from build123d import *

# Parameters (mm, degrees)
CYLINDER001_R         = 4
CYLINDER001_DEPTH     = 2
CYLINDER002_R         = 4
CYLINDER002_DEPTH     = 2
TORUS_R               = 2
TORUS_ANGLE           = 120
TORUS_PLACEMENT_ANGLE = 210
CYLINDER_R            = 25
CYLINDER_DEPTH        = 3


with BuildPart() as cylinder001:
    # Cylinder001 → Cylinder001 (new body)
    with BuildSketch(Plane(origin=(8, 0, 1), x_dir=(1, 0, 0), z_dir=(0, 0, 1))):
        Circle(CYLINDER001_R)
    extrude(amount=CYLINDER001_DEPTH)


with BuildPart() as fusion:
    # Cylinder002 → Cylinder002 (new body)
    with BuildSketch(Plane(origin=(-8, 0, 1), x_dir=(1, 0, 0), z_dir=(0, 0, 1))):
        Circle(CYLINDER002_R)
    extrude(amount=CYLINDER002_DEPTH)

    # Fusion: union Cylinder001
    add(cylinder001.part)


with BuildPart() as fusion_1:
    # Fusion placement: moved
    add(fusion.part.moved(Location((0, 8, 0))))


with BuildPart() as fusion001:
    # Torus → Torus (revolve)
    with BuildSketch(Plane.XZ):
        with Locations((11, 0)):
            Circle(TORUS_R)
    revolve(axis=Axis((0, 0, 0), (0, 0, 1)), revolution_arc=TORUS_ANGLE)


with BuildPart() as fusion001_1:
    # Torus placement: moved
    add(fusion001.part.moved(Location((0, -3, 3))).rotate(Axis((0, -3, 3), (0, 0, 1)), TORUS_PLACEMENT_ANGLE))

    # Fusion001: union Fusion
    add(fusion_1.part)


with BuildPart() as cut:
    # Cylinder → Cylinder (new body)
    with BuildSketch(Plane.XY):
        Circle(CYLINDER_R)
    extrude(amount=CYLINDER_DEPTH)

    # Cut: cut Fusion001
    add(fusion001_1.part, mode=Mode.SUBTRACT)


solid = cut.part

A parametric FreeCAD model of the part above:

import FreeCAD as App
import Part
import Sketcher

V = App.Vector

doc = App.newDocument("Part")
params = doc.addObject("Spreadsheet::Sheet", "Params")
for row, (alias, value) in enumerate([
    ("sketch1_diameter", "8 mm"),
    ("pad1_length", "2 mm"),
    ("sketch2_diameter", "8 mm"),
    ("pad2_length", "2 mm"),
    ("sketch3_diameter", "4 mm"),
    ("revolution_angle", "120 deg"),
    ("sketch4_diameter", "50 mm"),
    ("pad3_length", "3 mm"),
], start=1):
    params.set(f"A{row}", alias)
    params.set(f"B{row}", "=" + value)
    params.setAlias(f"B{row}", alias)

body = doc.addObject("PartDesign::Body", "Body")

# Sketch on XY plane
sketch1 = body.newObject("Sketcher::SketchObject", "Sketch")
sketch1.AttachmentSupport = (doc.getObject("XY_Plane"), [""])
sketch1.MapMode = "FlatFace"
sketch1.AttachmentOffset = App.Placement(V(0, 0, 1), App.Rotation())
sketch1.addGeometry(Part.Circle(V(8, 0, 0), V(0, 0, 1), 4), False)
sketch1.addConstraint(Sketcher.Constraint("PointOnObject", 0, 3, -1))
sketch1.addConstraint(Sketcher.Constraint("Diameter", 0, 8.0))
sketch1.addConstraint(Sketcher.Constraint("DistanceX", -1, 1, 0, 3, 8.0))
sketch1.setExpression("Constraints[1]", "Params.sketch1_diameter")
pad1 = body.newObject("PartDesign::Pad", "Pad")
pad1.Profile = sketch1
pad1.setExpression("Length", "Params.pad1_length")
body2 = doc.addObject("PartDesign::Body", "Body001")
body2.AllowCompound = True

# Sketch on XY plane
sketch2 = body2.newObject("Sketcher::SketchObject", "Sketch001")
sketch2.AttachmentSupport = (doc.getObject("XY_Plane001"), [""])
sketch2.MapMode = "FlatFace"
sketch2.AttachmentOffset = App.Placement(V(0, 0, 1), App.Rotation())
sketch2.addGeometry(Part.Circle(V(-8, 0, 0), V(0, 0, 1), 4), False)
sketch2.addConstraint(Sketcher.Constraint("PointOnObject", 0, 3, -1))
sketch2.addConstraint(Sketcher.Constraint("Diameter", 0, 8.0))
sketch2.addConstraint(Sketcher.Constraint("DistanceX", 0, 3, -1, 1, 8.0))
sketch2.setExpression("Constraints[1]", "Params.sketch2_diameter")
pad2 = body2.newObject("PartDesign::Pad", "Pad001")
pad2.Profile = sketch2
pad2.setExpression("Length", "Params.pad2_length")
doc.recompute()

boolean = body2.newObject("PartDesign::Boolean", "Boolean")
boolean.Type = "Fuse"
boolean.addObjects([body])
body3 = doc.addObject("PartDesign::Body", "Body002")
body3.AllowCompound = True
doc.recompute()

body2.Placement = App.Placement(V(0, 8, 0), App.Rotation(V(0, 0, 1), 0))
boolean2 = body3.newObject("PartDesign::Boolean", "Boolean001")
boolean2.Type = "Fuse"
boolean2.addObjects([body2])
body4 = doc.addObject("PartDesign::Body", "Body003")

# Sketch on XZ plane
sketch3 = body4.newObject("Sketcher::SketchObject", "Sketch002")
sketch3.AttachmentSupport = (doc.getObject("XZ_Plane003"), [""])
sketch3.MapMode = "FlatFace"
sketch3.addGeometry(Part.Circle(V(11, 0, 0), V(0, 0, 1), 2), False)
sketch3.addConstraint(Sketcher.Constraint("PointOnObject", 0, 3, -1))
sketch3.addConstraint(Sketcher.Constraint("Diameter", 0, 4.0))
sketch3.addConstraint(Sketcher.Constraint("DistanceX", -1, 1, 0, 3, 11.0))
sketch3.setExpression("Constraints[1]", "Params.sketch3_diameter")
revolution = body4.newObject("PartDesign::Revolution", "Revolution")
revolution.Profile = sketch3
revolution.ReferenceAxis = (sketch3, ["V_Axis"])
revolution.setExpression("Angle", "Params.revolution_angle")
body5 = doc.addObject("PartDesign::Body", "Body004")
body5.AllowCompound = True
doc.recompute()

body4.Placement = App.Placement(V(0, -3, 3), App.Rotation(V(0, 0, 1), 210))
boolean3 = body5.newObject("PartDesign::Boolean", "Boolean002")
boolean3.Type = "Fuse"
boolean3.addObjects([body4])
doc.recompute()

boolean4 = body5.newObject("PartDesign::Boolean", "Boolean003")
boolean4.Type = "Fuse"
boolean4.addObjects([body3])
body6 = doc.addObject("PartDesign::Body", "Body005")

# Sketch on XY plane
sketch4 = body6.newObject("Sketcher::SketchObject", "Sketch003")
sketch4.AttachmentSupport = (doc.getObject("XY_Plane005"), [""])
sketch4.MapMode = "FlatFace"
sketch4.addGeometry(Part.Circle(V(0, 0, 0), V(0, 0, 1), 25), False)
sketch4.addConstraint(Sketcher.Constraint("Coincident", 0, 3, -1, 1))
sketch4.addConstraint(Sketcher.Constraint("Diameter", 0, 50.0))
sketch4.setExpression("Constraints[1]", "Params.sketch4_diameter")
pad3 = body6.newObject("PartDesign::Pad", "Pad002")
pad3.Profile = sketch4
pad3.setExpression("Length", "Params.pad3_length")
doc.recompute()

boolean5 = body6.newObject("PartDesign::Boolean", "Boolean004")
boolean5.Type = "Cut"
boolean5.addObjects([body5])

doc.recompute()
